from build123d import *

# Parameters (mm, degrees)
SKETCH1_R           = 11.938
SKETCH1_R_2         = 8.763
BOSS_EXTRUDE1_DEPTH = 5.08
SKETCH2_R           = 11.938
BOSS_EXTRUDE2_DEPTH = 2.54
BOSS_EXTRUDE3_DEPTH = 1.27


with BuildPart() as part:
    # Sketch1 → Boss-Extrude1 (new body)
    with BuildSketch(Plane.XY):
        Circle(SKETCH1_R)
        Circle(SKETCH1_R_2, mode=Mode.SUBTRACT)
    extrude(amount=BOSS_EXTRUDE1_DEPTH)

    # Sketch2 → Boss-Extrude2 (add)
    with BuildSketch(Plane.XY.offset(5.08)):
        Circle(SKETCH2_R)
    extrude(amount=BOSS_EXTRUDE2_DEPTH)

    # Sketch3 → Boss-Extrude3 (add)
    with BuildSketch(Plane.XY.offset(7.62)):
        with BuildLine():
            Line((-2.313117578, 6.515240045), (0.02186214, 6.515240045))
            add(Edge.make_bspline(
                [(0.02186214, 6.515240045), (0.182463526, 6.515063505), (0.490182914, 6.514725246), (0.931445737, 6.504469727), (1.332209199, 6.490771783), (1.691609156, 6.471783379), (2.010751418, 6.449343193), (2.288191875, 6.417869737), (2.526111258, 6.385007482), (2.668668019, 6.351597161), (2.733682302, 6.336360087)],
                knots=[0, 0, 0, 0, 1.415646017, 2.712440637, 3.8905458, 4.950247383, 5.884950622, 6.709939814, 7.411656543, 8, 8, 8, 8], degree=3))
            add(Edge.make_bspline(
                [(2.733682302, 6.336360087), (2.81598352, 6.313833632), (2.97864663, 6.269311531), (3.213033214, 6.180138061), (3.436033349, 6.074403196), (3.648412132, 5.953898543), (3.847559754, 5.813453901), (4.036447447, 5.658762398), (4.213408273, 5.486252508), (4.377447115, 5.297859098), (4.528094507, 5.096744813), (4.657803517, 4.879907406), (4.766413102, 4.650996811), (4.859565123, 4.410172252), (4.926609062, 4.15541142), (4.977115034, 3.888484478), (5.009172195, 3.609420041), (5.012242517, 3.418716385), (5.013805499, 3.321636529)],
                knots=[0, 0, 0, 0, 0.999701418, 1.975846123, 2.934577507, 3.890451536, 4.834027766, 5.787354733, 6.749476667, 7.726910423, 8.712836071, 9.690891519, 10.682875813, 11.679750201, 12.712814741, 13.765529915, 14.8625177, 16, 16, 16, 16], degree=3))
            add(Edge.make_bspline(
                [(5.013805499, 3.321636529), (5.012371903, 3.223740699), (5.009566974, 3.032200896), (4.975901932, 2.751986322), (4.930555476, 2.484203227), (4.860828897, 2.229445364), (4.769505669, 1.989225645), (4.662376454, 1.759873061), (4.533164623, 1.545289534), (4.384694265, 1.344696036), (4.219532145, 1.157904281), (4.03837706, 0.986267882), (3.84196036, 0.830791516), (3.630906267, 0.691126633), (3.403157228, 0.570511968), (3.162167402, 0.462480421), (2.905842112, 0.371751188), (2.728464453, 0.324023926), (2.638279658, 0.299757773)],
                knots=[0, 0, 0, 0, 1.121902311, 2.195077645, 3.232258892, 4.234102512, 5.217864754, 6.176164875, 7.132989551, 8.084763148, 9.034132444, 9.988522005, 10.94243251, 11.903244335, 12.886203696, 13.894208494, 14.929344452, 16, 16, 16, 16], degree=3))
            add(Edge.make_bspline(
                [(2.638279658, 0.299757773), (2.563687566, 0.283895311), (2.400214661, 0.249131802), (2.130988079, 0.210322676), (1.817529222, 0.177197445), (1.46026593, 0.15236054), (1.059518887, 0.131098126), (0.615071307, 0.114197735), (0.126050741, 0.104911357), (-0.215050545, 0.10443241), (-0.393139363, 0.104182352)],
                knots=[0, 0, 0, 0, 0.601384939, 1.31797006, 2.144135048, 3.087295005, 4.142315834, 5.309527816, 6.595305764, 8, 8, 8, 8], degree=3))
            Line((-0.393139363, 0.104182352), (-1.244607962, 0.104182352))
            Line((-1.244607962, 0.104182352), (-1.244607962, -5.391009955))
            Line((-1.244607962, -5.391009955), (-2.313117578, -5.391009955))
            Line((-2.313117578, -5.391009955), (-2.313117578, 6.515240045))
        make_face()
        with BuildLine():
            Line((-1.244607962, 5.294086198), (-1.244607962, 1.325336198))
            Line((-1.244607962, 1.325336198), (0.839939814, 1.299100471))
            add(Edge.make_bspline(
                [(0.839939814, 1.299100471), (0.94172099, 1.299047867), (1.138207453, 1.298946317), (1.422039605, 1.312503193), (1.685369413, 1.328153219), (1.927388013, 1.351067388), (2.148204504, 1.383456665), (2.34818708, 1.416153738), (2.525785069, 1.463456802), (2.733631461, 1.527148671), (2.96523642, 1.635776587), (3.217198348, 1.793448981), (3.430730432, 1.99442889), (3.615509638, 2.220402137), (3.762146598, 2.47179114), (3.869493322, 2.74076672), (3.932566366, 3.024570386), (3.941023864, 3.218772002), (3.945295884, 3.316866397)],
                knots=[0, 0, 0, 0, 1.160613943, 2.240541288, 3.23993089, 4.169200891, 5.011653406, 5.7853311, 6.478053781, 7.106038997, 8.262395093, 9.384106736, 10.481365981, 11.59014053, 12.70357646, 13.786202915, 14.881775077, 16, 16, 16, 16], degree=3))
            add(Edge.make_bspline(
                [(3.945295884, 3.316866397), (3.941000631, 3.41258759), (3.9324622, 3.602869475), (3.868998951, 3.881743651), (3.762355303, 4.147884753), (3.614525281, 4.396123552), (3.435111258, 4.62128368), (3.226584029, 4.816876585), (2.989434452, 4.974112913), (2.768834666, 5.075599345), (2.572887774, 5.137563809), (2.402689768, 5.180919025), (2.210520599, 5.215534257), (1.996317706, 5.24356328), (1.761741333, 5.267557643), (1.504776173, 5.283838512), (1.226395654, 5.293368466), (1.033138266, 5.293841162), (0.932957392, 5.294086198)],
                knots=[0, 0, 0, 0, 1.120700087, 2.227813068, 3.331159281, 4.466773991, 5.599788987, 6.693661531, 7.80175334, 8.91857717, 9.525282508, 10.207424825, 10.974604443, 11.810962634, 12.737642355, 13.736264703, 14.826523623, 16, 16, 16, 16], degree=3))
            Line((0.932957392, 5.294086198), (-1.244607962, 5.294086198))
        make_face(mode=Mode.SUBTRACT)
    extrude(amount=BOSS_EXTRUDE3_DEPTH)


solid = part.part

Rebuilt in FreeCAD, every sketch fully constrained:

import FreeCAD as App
import Part
import Sketcher

V = App.Vector
Q = App.Units.Quantity

doc = App.newDocument("Part")
body = doc.addObject("PartDesign::Body", "Body")

# Sketch on XY plane
sketch1 = body.newObject("Sketcher::SketchObject", "Sketch")
sketch1.AttachmentSupport = (doc.getObject("XY_Plane"), [""])
sketch1.MapMode = "FlatFace"
sketch1.addGeometry([
    Part.Circle(V(0, 0, 0), V(0, 0, 1), 12),
    Part.Circle(V(0, 0, 0), V(0, 0, 1), 9),
], False)
sketch1.addConstraint([
    Sketcher.Constraint("Coincident", 0, 3, -1, 1),
    Sketcher.Constraint("Coincident", 1, 3, -1, 1),
    Sketcher.Constraint("Diameter", 0, Q("0.94 in")),
    Sketcher.Constraint("Diameter", 1, Q("0.69 in")),
])
pad1 = body.newObject("PartDesign::Pad", "Pad")
pad1.Profile = sketch1
pad1.Length = Q("0.2 in")

# Sketch on XY plane
sketch2 = body.newObject("Sketcher::SketchObject", "Sketch001")
sketch2.AttachmentSupport = (doc.getObject("XY_Plane"), [""])
sketch2.MapMode = "FlatFace"
sketch2.AttachmentOffset = App.Placement(V(0, 0, 0.2 * 25.4), App.Rotation())
sketch2.addGeometry(Part.Circle(V(0, 0, 0), V(0, 0, 1), 12), False)
sketch2.addConstraint([
    Sketcher.Constraint("Coincident", 0, 3, -1, 1),
    Sketcher.Constraint("Diameter", 0, Q("0.94 in")),
])
pad2 = body.newObject("PartDesign::Pad", "Pad001")
pad2.Profile = sketch2
pad2.Length = Q("0.1 in")

# Sketch on XY plane
sketch3 = body.newObject("Sketcher::SketchObject", "Sketch002")
sketch3.AttachmentSupport = (doc.getObject("XY_Plane"), [""])
sketch3.MapMode = "FlatFace"
sketch3.AttachmentOffset = App.Placement(V(0, 0, 0.3 * 25.4), App.Rotation())
sketch3.addGeometry([
    Part.LineSegment(V(0.021862, 6.51524, 0), V(-2.313118, 6.51524, 0)),  # 0
    Part.LineSegment(V(-2.313118, 6.51524, 0), V(-2.313118, -5.39101, 0)),  # 1
    Part.LineSegment(V(-2.313118, -5.39101, 0), V(-1.244608, -5.39101, 0)),  # 2
    Part.LineSegment(V(-1.244608, -5.39101, 0), V(-1.244608, 0.104182, 0)),  # 3
    Part.LineSegment(V(-1.244608, 0.104182, 0), V(-0.393139, 0.104182, 0)),  # 4
    Part.BSplineCurve([V(2.63828, 0.299758, 0), V(2.563688, 0.283895, 0), V(2.400215, 0.249132, 0), V(2.130988, 0.210323, 0), V(1.817529, 0.177197, 0), V(1.460266, 0.152361, 0), V(1.059519, 0.131098, 0), V(0.615071, 0.114198, 0), V(0.126051, 0.104911, 0), V(-0.215051, 0.104432, 0), V(-0.393139, 0.104182, 0)], [4, 1, 1, 1, 1, 1, 1, 1, 4], [0, 0.601384939, 1.31797006, 2.144135048, 3.087295005, 4.142315834, 5.309527816, 6.595305764, 8], False, 3, [1, 1, 1, 1, 1, 1, 1, 1, 1, 1, 1], False),  # 5
    Part.BSplineCurve([V(5.013805, 3.321637, 0), V(5.012372, 3.223741, 0), V(5.009567, 3.032201, 0), V(4.975902, 2.751986, 0), V(4.930555, 2.484203, 0), V(4.860829, 2.229445, 0), V(4.769506, 1.989226, 0), V(4.662376, 1.759873, 0), V(4.533165, 1.54529, 0), V(4.384694, 1.344696, 0), V(4.219532, 1.157904, 0), V(4.038377, 0.986268, 0), V(3.84196, 0.830792, 0), V(3.630906, 0.691127, 0), V(3.403157, 0.570512, 0), V(3.162167, 0.46248, 0), V(2.905842, 0.371751, 0), V(2.728464, 0.324024, 0), V(2.63828, 0.299758, 0)], [4, 1, 1, 1, 1, 1, 1, 1, 1, 1, 1, 1, 1, 1, 1, 1, 4], [0, 1.121902311, 2.195077645, 3.232258892, 4.234102512, 5.217864754, 6.176164875, 7.132989551, 8.084763148, 9.034132444, 9.988522005, 10.94243251, 11.903244335, 12.886203696, 13.894208494, 14.929344452, 16], False, 3, [1, 1, 1, 1, 1, 1, 1, 1, 1, 1, 1, 1, 1, 1, 1, 1, 1, 1, 1], False),  # 6
    Part.BSplineCurve([V(2.733682, 6.33636, 0), V(2.815984, 6.313834, 0), V(2.978647, 6.269312, 0), V(3.213033, 6.180138, 0), V(3.436033, 6.074403, 0), V(3.648412, 5.953899, 0), V(3.84756, 5.813454, 0), V(4.036447, 5.658762, 0), V(4.213408, 5.486253, 0), V(4.377447, 5.297859, 0), V(4.528095, 5.096745, 0), V(4.657804, 4.879907, 0), V(4.766413, 4.650997, 0), V(4.859565, 4.410172, 0), V(4.926609, 4.155411, 0), V(4.977115, 3.888484, 0), V(5.009172, 3.60942, 0), V(5.012243, 3.418716, 0), V(5.013805, 3.321637, 0)], [4, 1, 1, 1, 1, 1, 1, 1, 1, 1, 1, 1, 1, 1, 1, 1, 4], [0, 0.999701418, 1.975846123, 2.934577507, 3.890451536, 4.834027766, 5.787354733, 6.749476667, 7.726910423, 8.712836071, 9.690891519, 10.682875813, 11.679750201, 12.712814741, 13.765529915, 14.8625177, 16], False, 3, [1, 1, 1, 1, 1, 1, 1, 1, 1, 1, 1, 1, 1, 1, 1, 1, 1, 1, 1], False),  # 7
    Part.BSplineCurve([V(0.021862, 6.51524, 0), V(0.182464, 6.515064, 0), V(0.490183, 6.514725, 0), V(0.931446, 6.50447, 0), V(1.332209, 6.490772, 0), V(1.691609, 6.471783, 0), V(2.010751, 6.449343, 0), V(2.288192, 6.41787, 0), V(2.526111, 6.385007, 0), V(2.668668, 6.351597, 0), V(2.733682, 6.33636, 0)], [4, 1, 1, 1, 1, 1, 1, 1, 4], [0, 1.415646017, 2.712440637, 3.8905458, 4.950247383, 5.884950622, 6.709939814, 7.411656543, 8], False, 3, [1, 1, 1, 1, 1, 1, 1, 1, 1, 1, 1], False),  # 8
    Part.LineSegment(V(-1.244608, 5.294086, 0), V(0.932957, 5.294086, 0)),  # 9
    Part.BSplineCurve([V(3.945296, 3.316866, 0), V(3.941001, 3.412588, 0), V(3.932462, 3.602869, 0), V(3.868999, 3.881744, 0), V(3.762355, 4.147885, 0), V(3.614525, 4.396124, 0), V(3.435111, 4.621284, 0), V(3.226584, 4.816877, 0), V(2.989434, 4.974113, 0), V(2.768835, 5.075599, 0), V(2.572888, 5.137564, 0), V(2.40269, 5.180919, 0), V(2.210521, 5.215534, 0), V(1.996318, 5.243563, 0), V(1.761741, 5.267558, 0), V(1.504776, 5.283839, 0), V(1.226396, 5.293368, 0), V(1.033138, 5.293841, 0), V(0.932957, 5.294086, 0)], [4, 1, 1, 1, 1, 1, 1, 1, 1, 1, 1, 1, 1, 1, 1, 1, 4], [0, 1.120700087, 2.227813068, 3.331159281, 4.466773991, 5.599788987, 6.693661531, 7.80175334, 8.91857717, 9.525282508, 10.207424825, 10.974604443, 11.810962634, 12.737642355, 13.736264703, 14.826523623, 16], False, 3, [1, 1, 1, 1, 1, 1, 1, 1, 1, 1, 1, 1, 1, 1, 1, 1, 1, 1, 1], False),  # 10
    Part.BSplineCurve([V(0.83994, 1.2991, 0), V(0.941721, 1.299048, 0), V(1.138207, 1.298946, 0), V(1.42204, 1.312503, 0), V(1.685369, 1.328153, 0), V(1.927388, 1.351067, 0), V(2.148205, 1.383457, 0), V(2.348187, 1.416154, 0), V(2.525785, 1.463457, 0), V(2.733631, 1.527149, 0), V(2.965236, 1.635777, 0), V(3.217198, 1.793449, 0), V(3.43073, 1.994429, 0), V(3.61551, 2.220402, 0), V(3.762147, 2.471791, 0), V(3.869493, 2.740767, 0), V(3.932566, 3.02457, 0), V(3.941024, 3.218772, 0), V(3.945296, 3.316866, 0)], [4, 1, 1, 1, 1, 1, 1, 1, 1, 1, 1, 1, 1, 1, 1, 1, 4], [0, 1.160613943, 2.240541288, 3.23993089, 4.169200891, 5.011653406, 5.7853311, 6.478053781, 7.106038997, 8.262395093, 9.384106736, 10.481365981, 11.59014053, 12.70357646, 13.786202915, 14.881775077, 16], False, 3, [1, 1, 1, 1, 1, 1, 1, 1, 1, 1, 1, 1, 1, 1, 1, 1, 1, 1, 1], False),  # 11
    Part.LineSegment(V(0.83994, 1.2991, 0), V(-1.244608, 1.325336, 0)),  # 12
    Part.LineSegment(V(-1.244608, 1.325336, 0), V(-1.244608, 5.294086, 0)),  # 13
], False)
sketch3.addConstraint([
    Sketcher.Constraint("Block", 5),
    Sketcher.Constraint("Block", 6),
    Sketcher.Constraint("Block", 7),
    Sketcher.Constraint("Block", 8),
    Sketcher.Constraint("Block", 10),
    Sketcher.Constraint("Block", 11),
    Sketcher.Constraint("Coincident", 0, 2, 1, 1),
    Sketcher.Constraint("Coincident", 1, 2, 2, 1),
    Sketcher.Constraint("Coincident", 2, 2, 3, 1),
    Sketcher.Constraint("Coincident", 3, 2, 4, 1),
    Sketcher.Constraint("Coincident", 4, 2, 5, 2),
    Sketcher.Constraint("Coincident", 8, 1, 0, 1),
    Sketcher.Constraint("Coincident", 9, 2, 10, 2),
    Sketcher.Constraint("Coincident", 11, 1, 12, 1),
    Sketcher.Constraint("Coincident", 12, 2, 13, 1),
    Sketcher.Constraint("Coincident", 13, 2, 9, 1),
    Sketcher.Constraint("Horizontal", 0),
    Sketcher.Constraint("Vertical", 1),
    Sketcher.Constraint("Horizontal", 2),
    Sketcher.Constraint("Vertical", 3),
    Sketcher.Constraint("Horizontal", 4),
    Sketcher.Constraint("Horizontal", 9),
    Sketcher.Constraint("Vertical", 13),
    Sketcher.Constraint("Vertical", 3, 2, 12, 2),
    Sketcher.Constraint("DistanceY", 1, 2, 1, 1, Q("0.46875 in")),
    Sketcher.Constraint("DistanceY", 13, 1, 13, 2, Q("0.15625 in")),
    Sketcher.Constraint("DistanceX", 0, 2, 0, 1, 2.33498),
    Sketcher.Constraint("DistanceX", 2, 1, 2, 2, 1.06851),
])
pad3 = body.newObject("PartDesign::Pad", "Pad002")
pad3.Profile = sketch3
pad3.Length = Q("0.05 in")

doc.recompute()
